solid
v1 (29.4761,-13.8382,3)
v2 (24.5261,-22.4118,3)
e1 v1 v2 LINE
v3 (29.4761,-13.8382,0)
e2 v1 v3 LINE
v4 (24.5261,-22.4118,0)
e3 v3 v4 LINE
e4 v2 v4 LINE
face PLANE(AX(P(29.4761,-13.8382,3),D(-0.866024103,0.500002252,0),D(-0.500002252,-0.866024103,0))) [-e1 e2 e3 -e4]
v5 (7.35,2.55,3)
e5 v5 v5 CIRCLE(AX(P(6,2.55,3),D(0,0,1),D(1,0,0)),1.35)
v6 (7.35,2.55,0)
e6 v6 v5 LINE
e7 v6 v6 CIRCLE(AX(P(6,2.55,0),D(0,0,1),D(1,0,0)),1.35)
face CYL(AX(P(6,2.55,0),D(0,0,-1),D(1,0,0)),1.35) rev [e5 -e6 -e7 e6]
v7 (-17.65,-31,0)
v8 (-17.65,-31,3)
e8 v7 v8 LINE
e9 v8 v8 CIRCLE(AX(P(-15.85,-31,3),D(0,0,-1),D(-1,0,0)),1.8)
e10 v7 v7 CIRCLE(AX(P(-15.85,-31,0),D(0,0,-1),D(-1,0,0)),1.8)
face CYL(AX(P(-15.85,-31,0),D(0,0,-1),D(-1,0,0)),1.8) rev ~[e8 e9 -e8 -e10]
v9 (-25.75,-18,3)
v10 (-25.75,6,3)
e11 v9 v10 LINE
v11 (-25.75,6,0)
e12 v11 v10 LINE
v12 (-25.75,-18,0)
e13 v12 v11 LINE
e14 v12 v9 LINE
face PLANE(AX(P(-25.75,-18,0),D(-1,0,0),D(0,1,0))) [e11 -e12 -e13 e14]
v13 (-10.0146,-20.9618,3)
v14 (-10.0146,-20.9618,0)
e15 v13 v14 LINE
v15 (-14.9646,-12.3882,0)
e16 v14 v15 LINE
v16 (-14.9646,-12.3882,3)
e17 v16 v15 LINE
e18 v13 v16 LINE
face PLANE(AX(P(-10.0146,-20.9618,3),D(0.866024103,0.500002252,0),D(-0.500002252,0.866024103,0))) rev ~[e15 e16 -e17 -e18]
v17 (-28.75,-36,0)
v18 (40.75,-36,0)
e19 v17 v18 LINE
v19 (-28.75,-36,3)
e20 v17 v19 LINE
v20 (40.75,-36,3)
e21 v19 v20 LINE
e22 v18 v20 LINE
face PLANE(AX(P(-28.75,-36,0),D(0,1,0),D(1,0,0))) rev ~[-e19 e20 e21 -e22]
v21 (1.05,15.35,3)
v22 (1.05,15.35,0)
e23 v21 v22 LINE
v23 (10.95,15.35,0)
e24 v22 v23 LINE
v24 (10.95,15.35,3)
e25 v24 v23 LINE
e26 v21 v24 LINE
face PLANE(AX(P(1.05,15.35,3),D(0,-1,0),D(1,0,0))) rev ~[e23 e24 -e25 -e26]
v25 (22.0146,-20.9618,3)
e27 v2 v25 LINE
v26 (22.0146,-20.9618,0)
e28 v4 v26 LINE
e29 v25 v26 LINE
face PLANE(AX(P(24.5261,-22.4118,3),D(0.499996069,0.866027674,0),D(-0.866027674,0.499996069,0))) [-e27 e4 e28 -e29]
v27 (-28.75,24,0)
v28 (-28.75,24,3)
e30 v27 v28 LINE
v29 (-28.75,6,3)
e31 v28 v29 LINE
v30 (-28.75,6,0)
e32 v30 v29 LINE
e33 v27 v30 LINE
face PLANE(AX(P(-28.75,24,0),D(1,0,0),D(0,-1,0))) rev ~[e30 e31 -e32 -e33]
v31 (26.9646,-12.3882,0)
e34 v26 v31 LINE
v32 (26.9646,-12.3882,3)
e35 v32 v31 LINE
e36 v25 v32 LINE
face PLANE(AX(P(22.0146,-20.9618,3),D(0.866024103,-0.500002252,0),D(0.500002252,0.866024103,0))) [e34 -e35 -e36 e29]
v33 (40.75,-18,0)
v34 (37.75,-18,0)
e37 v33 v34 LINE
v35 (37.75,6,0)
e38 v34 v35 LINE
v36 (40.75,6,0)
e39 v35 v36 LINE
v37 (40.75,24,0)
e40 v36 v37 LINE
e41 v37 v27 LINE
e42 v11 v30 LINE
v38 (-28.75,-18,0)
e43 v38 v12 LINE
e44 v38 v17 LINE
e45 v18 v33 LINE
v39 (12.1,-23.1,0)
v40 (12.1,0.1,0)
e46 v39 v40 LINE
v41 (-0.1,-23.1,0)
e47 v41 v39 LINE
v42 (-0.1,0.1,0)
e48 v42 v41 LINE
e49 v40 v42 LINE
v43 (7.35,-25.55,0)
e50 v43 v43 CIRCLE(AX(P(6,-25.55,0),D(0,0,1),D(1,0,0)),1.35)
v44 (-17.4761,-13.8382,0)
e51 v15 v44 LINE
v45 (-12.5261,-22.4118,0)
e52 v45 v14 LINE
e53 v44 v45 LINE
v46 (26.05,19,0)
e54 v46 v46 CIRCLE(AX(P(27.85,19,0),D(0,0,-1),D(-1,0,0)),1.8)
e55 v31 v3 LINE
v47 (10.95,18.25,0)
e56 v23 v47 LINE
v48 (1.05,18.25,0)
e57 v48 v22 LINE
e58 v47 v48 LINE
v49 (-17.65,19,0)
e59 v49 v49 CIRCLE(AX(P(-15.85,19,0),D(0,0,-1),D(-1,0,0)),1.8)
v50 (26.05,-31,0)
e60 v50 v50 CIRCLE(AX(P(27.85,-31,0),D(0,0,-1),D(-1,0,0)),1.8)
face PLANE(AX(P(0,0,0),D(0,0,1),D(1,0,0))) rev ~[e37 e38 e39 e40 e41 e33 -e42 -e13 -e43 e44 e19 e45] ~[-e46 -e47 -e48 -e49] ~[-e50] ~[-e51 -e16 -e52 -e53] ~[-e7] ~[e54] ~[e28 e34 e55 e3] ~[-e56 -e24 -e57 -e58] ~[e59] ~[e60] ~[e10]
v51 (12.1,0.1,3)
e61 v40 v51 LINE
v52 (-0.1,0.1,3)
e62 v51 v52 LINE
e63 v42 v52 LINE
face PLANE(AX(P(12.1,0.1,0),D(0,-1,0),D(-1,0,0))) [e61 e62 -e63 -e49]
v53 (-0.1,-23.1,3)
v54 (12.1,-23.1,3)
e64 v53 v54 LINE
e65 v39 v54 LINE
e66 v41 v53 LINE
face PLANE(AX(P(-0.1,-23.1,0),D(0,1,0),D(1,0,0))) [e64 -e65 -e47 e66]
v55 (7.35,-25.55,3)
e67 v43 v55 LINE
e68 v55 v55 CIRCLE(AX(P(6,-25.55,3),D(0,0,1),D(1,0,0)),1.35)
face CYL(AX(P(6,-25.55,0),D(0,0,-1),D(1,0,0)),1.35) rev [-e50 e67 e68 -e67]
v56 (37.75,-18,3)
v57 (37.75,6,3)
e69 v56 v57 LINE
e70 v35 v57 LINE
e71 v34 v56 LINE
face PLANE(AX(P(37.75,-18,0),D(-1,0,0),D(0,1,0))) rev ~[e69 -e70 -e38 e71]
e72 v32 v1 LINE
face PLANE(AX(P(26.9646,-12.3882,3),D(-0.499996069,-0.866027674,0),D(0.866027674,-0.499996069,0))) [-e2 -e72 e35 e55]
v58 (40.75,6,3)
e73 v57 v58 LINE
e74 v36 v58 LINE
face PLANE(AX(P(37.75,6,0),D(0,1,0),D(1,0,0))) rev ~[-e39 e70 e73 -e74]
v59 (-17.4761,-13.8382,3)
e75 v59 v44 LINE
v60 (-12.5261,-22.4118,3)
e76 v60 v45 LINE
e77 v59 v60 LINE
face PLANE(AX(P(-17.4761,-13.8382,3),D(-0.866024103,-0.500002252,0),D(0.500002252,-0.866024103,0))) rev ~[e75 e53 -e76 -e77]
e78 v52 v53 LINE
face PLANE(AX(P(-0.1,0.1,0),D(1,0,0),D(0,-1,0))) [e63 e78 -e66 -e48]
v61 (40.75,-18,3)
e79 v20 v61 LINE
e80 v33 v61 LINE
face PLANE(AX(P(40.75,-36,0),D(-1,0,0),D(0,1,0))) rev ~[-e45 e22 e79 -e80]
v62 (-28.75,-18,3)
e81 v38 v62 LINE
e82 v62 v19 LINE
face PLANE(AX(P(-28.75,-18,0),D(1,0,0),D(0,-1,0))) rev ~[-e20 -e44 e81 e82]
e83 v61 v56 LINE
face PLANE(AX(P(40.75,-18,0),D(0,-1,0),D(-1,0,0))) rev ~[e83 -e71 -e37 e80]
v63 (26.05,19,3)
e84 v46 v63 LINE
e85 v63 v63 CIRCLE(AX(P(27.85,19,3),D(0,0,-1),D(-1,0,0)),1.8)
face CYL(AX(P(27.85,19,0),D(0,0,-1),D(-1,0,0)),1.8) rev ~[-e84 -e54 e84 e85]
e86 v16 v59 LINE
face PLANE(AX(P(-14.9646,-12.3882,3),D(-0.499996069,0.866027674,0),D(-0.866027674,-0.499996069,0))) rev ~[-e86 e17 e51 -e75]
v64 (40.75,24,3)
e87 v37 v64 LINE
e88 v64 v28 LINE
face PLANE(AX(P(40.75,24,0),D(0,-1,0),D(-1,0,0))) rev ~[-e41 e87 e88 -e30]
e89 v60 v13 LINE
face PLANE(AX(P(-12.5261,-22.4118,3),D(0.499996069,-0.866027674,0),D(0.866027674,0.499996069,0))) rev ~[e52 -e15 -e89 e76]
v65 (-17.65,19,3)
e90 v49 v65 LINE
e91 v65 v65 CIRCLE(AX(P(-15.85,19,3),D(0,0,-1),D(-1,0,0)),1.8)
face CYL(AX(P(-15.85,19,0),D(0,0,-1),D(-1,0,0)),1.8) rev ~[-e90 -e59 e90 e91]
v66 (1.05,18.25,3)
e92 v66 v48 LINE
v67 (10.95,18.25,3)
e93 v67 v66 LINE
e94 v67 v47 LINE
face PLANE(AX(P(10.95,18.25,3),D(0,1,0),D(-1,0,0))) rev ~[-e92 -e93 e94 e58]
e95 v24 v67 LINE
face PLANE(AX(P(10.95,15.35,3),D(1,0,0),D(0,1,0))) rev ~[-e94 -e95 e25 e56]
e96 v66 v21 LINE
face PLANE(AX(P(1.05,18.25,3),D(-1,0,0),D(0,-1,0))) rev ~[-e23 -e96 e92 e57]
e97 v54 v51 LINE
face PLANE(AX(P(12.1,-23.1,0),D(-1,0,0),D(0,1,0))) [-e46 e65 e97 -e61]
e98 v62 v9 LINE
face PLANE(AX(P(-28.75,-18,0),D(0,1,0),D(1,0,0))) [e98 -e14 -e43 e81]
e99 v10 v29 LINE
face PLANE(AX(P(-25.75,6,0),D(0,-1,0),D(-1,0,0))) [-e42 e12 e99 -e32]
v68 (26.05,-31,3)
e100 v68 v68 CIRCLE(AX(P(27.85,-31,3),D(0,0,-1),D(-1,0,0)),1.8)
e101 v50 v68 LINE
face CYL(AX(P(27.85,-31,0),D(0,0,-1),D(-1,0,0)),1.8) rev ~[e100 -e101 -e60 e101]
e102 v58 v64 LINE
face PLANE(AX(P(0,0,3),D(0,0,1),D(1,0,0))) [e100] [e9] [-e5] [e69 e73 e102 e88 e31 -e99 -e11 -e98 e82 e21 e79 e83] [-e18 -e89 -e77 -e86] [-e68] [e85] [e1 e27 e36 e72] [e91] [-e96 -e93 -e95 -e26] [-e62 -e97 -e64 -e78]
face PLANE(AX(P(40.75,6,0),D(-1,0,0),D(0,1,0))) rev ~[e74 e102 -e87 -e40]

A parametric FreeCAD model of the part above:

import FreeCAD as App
import Part
import Sketcher
Q = App.Units.Quantity

doc = App.newDocument("Part")
body = doc.addObject("PartDesign::Body", "Body")

# Sketch on XY plane
sketch1 = doc.addObject("Sketcher::SketchObject", "Sketch")
body.addObject(sketch1)
sketch1.AttachmentSupport = (doc.XY_Plane, [""])
sketch1.MapMode = "FlatFace"
sketch1.addGeometry([
    Part.LineSegment(App.Vector(-28.8, -18, 0), App.Vector(-28.8, -36, 0)),  # 0
    Part.LineSegment(App.Vector(-28.8, -36, 0), App.Vector(40.8, -36, 0)),  # 1
    Part.LineSegment(App.Vector(40.8, -36, 0), App.Vector(40.8, -18, 0)),  # 2
    Part.LineSegment(App.Vector(40.8, -18, 0), App.Vector(37.8, -18, 0)),  # 3
    Part.LineSegment(App.Vector(37.8, -18, 0), App.Vector(37.8, 6, 0)),  # 4
    Part.LineSegment(App.Vector(37.8, 6, 0), App.Vector(40.8, 6, 0)),  # 5
    Part.LineSegment(App.Vector(40.8, 6, 0), App.Vector(40.8, 24, 0)),  # 6
    Part.LineSegment(App.Vector(40.8, 24, 0), App.Vector(-28.8, 24, 0)),  # 7
    Part.LineSegment(App.Vector(-28.8, 24, 0), App.Vector(-28.8, 6, 0)),  # 8
    Part.LineSegment(App.Vector(-28.8, 6, 0), App.Vector(-25.8, 6, 0)),  # 9
    Part.LineSegment(App.Vector(-25.8, 6, 0), App.Vector(-25.8, -18, 0)),  # 10
    Part.LineSegment(App.Vector(-25.8, -18, 0), App.Vector(-28.8, -18, 0)),  # 11
    Part.Circle(App.Vector(6, -25.6, 0), App.Vector(0, 0, 1), 1.4),  # 12
    Part.LineSegment(App.Vector(12.1, -23.1, 0), App.Vector(-0.1, -23.1, 0)),  # 13
    Part.LineSegment(App.Vector(-0.1, -23.1, 0), App.Vector(-0.1, 0.1, 0)),  # 14
    Part.LineSegment(App.Vector(-0.1, 0.1, 0), App.Vector(12.1, 0.1, 0)),  # 15
    Part.LineSegment(App.Vector(12.1, 0.1, 0), App.Vector(12.1, -23.1, 0)),  # 16
    Part.Circle(App.Vector(6, 2.5, 0), App.Vector(0, 0, 1), 1.4),  # 17
], False)
sketch1.addConstraint([
    Sketcher.Constraint("Coincident", 0, 2, 1, 1),
    Sketcher.Constraint("Coincident", 1, 2, 2, 1),
    Sketcher.Constraint("Coincident", 2, 2, 3, 1),
    Sketcher.Constraint("Coincident", 3, 2, 4, 1),
    Sketcher.Constraint("Coincident", 4, 2, 5, 1),
    Sketcher.Constraint("Coincident", 5, 2, 6, 1),
    Sketcher.Constraint("Coincident", 6, 2, 7, 1),
    Sketcher.Constraint("Coincident", 7, 2, 8, 1),
    Sketcher.Constraint("Coincident", 8, 2, 9, 1),
    Sketcher.Constraint("Coincident", 9, 2, 10, 1),
    Sketcher.Constraint("Coincident", 10, 2, 11, 1),
    Sketcher.Constraint("Coincident", 11, 2, 0, 1),
    Sketcher.Constraint("Coincident", 13, 2, 14, 1),
    Sketcher.Constraint("Coincident", 14, 2, 15, 1),
    Sketcher.Constraint("Coincident", 15, 2, 16, 1),
    Sketcher.Constraint("Coincident", 16, 2, 13, 1),
    Sketcher.Constraint("Vertical", 0),
    Sketcher.Constraint("Horizontal", 1),
    Sketcher.Constraint("Vertical", 2),
    Sketcher.Constraint("Horizontal", 3),
    Sketcher.Constraint("Vertical", 4),
    Sketcher.Constraint("Horizontal", 5),
    Sketcher.Constraint("Vertical", 6),
    Sketcher.Constraint("Horizontal", 7),
    Sketcher.Constraint("Vertical", 8),
    Sketcher.Constraint("Horizontal", 9),
    Sketcher.Constraint("Vertical", 10),
    Sketcher.Constraint("Horizontal", 11),
    Sketcher.Constraint("Horizontal", 13),
    Sketcher.Constraint("Vertical", 14),
    Sketcher.Constraint("Horizontal", 15),
    Sketcher.Constraint("Vertical", 16),
    Sketcher.Constraint("Equal", 12, 17),
    Sketcher.Constraint("Horizontal", 5, 2, 8, 2),
    Sketcher.Constraint("Horizontal", 3, 2, 10, 2),
    Sketcher.Constraint("Vertical", 12, 3, 17, 3),
    Sketcher.Constraint("Vertical", 2, 2, 5, 2),
    Sketcher.Constraint("Vertical", 0, 2, 7, 2),
    Sketcher.Constraint("Equal", 5, 9),
    Sketcher.Constraint("Equal", 2, 6),
    Sketcher.Constraint("DistanceX", 3, 2, 3, 1, Q("3 mm")),
    Sketcher.Constraint("DistanceX", 1, 1, 1, 2, Q("69.5 mm")),
    Sketcher.Constraint("DistanceY", 0, 2, 7, 2, Q("60 mm")),
    Sketcher.Constraint("Diameter", 12, Q("2.7 mm")),
    Sketcher.Constraint("DistanceX", 13, 2, -1, 1, Q("0.1 mm")),
    Sketcher.Constraint("DistanceY", -1, 1, 14, 2, Q("0.1 mm")),
    Sketcher.Constraint("DistanceY", 0, 2, 0, 1, Q("18 mm")),
    Sketcher.Constraint("DistanceX", 13, 2, 13, 1, Q("12.2 mm")),
    Sketcher.Constraint("DistanceY", 14, 1, 14, 2, Q("23.2 mm")),
    Sketcher.Constraint("DistanceX", -1, 1, 12, 3, Q("6 mm")),
    Sketcher.Constraint("DistanceY", 0, 2, -1, 1, Q("36 mm")),
    Sketcher.Constraint("DistanceY", 12, 3, 17, 3, Q("28.1 mm")),
    Sketcher.Constraint("DistanceY", 12, 3, -1, 1, Q("25.55 mm")),
    Sketcher.Constraint("DistanceX", 0, 2, -1, 1, Q("28.75 mm")),
])
pad1 = doc.addObject("PartDesign::Pad", "Pad")
body.addObject(pad1)
pad1.Profile = sketch1
pad1.Length = 3

# Sketch on XY plane
sketch2 = doc.addObject("Sketcher::SketchObject", "Sketch001")
body.addObject(sketch2)
sketch2.AttachmentSupport = (doc.XY_Plane, [""])
sketch2.MapMode = "FlatFace"
sketch2.addGeometry([
    Part.Circle(App.Vector(-15.8, 19, 0), App.Vector(0, 0, 1), 1.8),
    Part.Circle(App.Vector(27.9, 19, 0), App.Vector(0, 0, 1), 1.8),
    Part.Circle(App.Vector(27.9, -31, 0), App.Vector(0, 0, 1), 1.8),
    Part.Circle(App.Vector(-15.8, -31, 0), App.Vector(0, 0, 1), 1.8),
], False)
sketch2.addConstraint([
    Sketcher.Constraint("Equal", 0, 1),
    Sketcher.Constraint("Equal", 1, 2),
    Sketcher.Constraint("Equal", 2, 3),
    Sketcher.Constraint("Horizontal", 0, 3, 1, 3),
    Sketcher.Constraint("Horizontal", 2, 3, 3, 3),
    Sketcher.Constraint("Vertical", 1, 3, 2, 3),
    Sketcher.Constraint("Vertical", 0, 3, 3, 3),
    Sketcher.Constraint("Diameter", 0, Q("3.6 mm")),
    Sketcher.Constraint("DistanceY", -1, 1, 0, 3, Q("19 mm")),
    Sketcher.Constraint("DistanceY", 2, 3, -1, 1, Q("31 mm")),
    Sketcher.Constraint("DistanceX", 0, 3, 1, 3, Q("43.7 mm")),
    Sketcher.Constraint("DistanceX", 0, 3, -1, 1, Q("15.85 mm")),
])
pocket1 = doc.addObject("PartDesign::Pocket", "Pocket")
body.addObject(pocket1)
pocket1.Profile = sketch2
pocket1.Length = 7.7625
pocket1.Reversed = True

# Sketch on XY plane
sketch3 = doc.addObject("Sketcher::SketchObject", "Sketch002")
body.addObject(sketch3)
sketch3.AttachmentSupport = (doc.XY_Plane, [""])
sketch3.MapMode = "FlatFace"
sketch3.AttachmentOffset = App.Placement(App.Vector(0, 0, 3), App.Rotation())
sketch3.addGeometry([
    Part.LineSegment(App.Vector(29.5, -13.8, 0), App.Vector(27, -12.4, 0)),  # 0
    Part.LineSegment(App.Vector(27, -12.4, 0), App.Vector(22, -21, 0)),  # 1
    Part.LineSegment(App.Vector(22, -21, 0), App.Vector(24.5, -22.4, 0)),  # 2
    Part.LineSegment(App.Vector(24.5, -22.4, 0), App.Vector(29.5, -13.8, 0)),  # 3
    Part.LineSegment(App.Vector(-12.5, -22.4, 0), App.Vector(-10, -21, 0)),  # 4
    Part.LineSegment(App.Vector(-10, -21, 0), App.Vector(-15, -12.4, 0)),  # 5
    Part.LineSegment(App.Vector(-15, -12.4, 0), App.Vector(-17.5, -13.8, 0)),  # 6
    Part.LineSegment(App.Vector(-17.5, -13.8, 0), App.Vector(-12.5, -22.4, 0)),  # 7
    Part.LineSegment(App.Vector(1.1, 18.2, 0), App.Vector(1.1, 15.3, 0)),  # 8
    Part.LineSegment(App.Vector(1.1, 15.3, 0), App.Vector(10.9, 15.3, 0)),  # 9
    Part.LineSegment(App.Vector(10.9, 15.3, 0), App.Vector(10.9, 18.2, 0)),  # 10
    Part.LineSegment(App.Vector(10.9, 18.2, 0), App.Vector(1.1, 18.2, 0)),  # 11
], False)
sketch3.addConstraint([
    Sketcher.Constraint("Coincident", 0, 2, 1, 1),
    Sketcher.Constraint("Coincident", 1, 2, 2, 1),
    Sketcher.Constraint("Coincident", 2, 2, 3, 1),
    Sketcher.Constraint("Coincident", 3, 2, 0, 1),
    Sketcher.Constraint("Coincident", 4, 2, 5, 1),
    Sketcher.Constraint("Coincident", 5, 2, 6, 1),
    Sketcher.Constraint("Coincident", 6, 2, 7, 1),
    Sketcher.Constraint("Coincident", 7, 2, 4, 1),
    Sketcher.Constraint("Coincident", 8, 2, 9, 1),
    Sketcher.Constraint("Coincident", 9, 2, 10, 1),
    Sketcher.Constraint("Coincident", 10, 2, 11, 1),
    Sketcher.Constraint("Coincident", 11, 2, 8, 1),
    Sketcher.Constraint("Vertical", 8),
    Sketcher.Constraint("Horizontal", 9),
    Sketcher.Constraint("Vertical", 10),
    Sketcher.Constraint("Horizontal", 11),
    Sketcher.Constraint("Perpendicular", 0, 1),
    Sketcher.Constraint("Perpendicular", 1, 2),
    Sketcher.Constraint("Perpendicular", 2, 3),
    Sketcher.Constraint("Perpendicular", 4, 5),
    Sketcher.Constraint("Perpendicular", 5, 6),
    Sketcher.Constraint("Perpendicular", 6, 7),
    Sketcher.Constraint("Horizontal", 1, 2, 4, 2),
    Sketcher.Constraint("Horizontal", 0, 2, 5, 2),
    Sketcher.Constraint("Horizontal", 3, 2, 6, 2),
    Sketcher.Constraint("Equal", 2, 4),
    Sketcher.Constraint("Angle", 0, Q("150.0003 deg")),
    Sketcher.Constraint("DistanceX", 9, 1, 9, 2, Q("9.9 mm")),
    Sketcher.Constraint("DistanceY", 8, 2, 8, 1, Q("2.9 mm")),
    Sketcher.Constraint("Distance", 0, Q("2.9 mm")),
    Sketcher.Constraint("Distance", 1, Q("9.9 mm")),
    Sketcher.Constraint("DistanceX", -1, 1, 8, 2, Q("1.05 mm")),
    Sketcher.Constraint("DistanceY", -1, 1, 8, 2, Q("15.35 mm")),
    Sketcher.Constraint("DistanceX", -1, 1, 2, 2, Q("24.526 mm")),
    Sketcher.Constraint("DistanceX", 6, 2, -1, 1, Q("17.476 mm")),
    Sketcher.Constraint("DistanceY", 0, 2, -1, 1, Q("12.3882 mm")),
])
pocket2 = doc.addObject("PartDesign::Pocket", "Pocket001")
body.addObject(pocket2)
pocket2.Profile = sketch3
pocket2.Length = 10

doc.recompute()
